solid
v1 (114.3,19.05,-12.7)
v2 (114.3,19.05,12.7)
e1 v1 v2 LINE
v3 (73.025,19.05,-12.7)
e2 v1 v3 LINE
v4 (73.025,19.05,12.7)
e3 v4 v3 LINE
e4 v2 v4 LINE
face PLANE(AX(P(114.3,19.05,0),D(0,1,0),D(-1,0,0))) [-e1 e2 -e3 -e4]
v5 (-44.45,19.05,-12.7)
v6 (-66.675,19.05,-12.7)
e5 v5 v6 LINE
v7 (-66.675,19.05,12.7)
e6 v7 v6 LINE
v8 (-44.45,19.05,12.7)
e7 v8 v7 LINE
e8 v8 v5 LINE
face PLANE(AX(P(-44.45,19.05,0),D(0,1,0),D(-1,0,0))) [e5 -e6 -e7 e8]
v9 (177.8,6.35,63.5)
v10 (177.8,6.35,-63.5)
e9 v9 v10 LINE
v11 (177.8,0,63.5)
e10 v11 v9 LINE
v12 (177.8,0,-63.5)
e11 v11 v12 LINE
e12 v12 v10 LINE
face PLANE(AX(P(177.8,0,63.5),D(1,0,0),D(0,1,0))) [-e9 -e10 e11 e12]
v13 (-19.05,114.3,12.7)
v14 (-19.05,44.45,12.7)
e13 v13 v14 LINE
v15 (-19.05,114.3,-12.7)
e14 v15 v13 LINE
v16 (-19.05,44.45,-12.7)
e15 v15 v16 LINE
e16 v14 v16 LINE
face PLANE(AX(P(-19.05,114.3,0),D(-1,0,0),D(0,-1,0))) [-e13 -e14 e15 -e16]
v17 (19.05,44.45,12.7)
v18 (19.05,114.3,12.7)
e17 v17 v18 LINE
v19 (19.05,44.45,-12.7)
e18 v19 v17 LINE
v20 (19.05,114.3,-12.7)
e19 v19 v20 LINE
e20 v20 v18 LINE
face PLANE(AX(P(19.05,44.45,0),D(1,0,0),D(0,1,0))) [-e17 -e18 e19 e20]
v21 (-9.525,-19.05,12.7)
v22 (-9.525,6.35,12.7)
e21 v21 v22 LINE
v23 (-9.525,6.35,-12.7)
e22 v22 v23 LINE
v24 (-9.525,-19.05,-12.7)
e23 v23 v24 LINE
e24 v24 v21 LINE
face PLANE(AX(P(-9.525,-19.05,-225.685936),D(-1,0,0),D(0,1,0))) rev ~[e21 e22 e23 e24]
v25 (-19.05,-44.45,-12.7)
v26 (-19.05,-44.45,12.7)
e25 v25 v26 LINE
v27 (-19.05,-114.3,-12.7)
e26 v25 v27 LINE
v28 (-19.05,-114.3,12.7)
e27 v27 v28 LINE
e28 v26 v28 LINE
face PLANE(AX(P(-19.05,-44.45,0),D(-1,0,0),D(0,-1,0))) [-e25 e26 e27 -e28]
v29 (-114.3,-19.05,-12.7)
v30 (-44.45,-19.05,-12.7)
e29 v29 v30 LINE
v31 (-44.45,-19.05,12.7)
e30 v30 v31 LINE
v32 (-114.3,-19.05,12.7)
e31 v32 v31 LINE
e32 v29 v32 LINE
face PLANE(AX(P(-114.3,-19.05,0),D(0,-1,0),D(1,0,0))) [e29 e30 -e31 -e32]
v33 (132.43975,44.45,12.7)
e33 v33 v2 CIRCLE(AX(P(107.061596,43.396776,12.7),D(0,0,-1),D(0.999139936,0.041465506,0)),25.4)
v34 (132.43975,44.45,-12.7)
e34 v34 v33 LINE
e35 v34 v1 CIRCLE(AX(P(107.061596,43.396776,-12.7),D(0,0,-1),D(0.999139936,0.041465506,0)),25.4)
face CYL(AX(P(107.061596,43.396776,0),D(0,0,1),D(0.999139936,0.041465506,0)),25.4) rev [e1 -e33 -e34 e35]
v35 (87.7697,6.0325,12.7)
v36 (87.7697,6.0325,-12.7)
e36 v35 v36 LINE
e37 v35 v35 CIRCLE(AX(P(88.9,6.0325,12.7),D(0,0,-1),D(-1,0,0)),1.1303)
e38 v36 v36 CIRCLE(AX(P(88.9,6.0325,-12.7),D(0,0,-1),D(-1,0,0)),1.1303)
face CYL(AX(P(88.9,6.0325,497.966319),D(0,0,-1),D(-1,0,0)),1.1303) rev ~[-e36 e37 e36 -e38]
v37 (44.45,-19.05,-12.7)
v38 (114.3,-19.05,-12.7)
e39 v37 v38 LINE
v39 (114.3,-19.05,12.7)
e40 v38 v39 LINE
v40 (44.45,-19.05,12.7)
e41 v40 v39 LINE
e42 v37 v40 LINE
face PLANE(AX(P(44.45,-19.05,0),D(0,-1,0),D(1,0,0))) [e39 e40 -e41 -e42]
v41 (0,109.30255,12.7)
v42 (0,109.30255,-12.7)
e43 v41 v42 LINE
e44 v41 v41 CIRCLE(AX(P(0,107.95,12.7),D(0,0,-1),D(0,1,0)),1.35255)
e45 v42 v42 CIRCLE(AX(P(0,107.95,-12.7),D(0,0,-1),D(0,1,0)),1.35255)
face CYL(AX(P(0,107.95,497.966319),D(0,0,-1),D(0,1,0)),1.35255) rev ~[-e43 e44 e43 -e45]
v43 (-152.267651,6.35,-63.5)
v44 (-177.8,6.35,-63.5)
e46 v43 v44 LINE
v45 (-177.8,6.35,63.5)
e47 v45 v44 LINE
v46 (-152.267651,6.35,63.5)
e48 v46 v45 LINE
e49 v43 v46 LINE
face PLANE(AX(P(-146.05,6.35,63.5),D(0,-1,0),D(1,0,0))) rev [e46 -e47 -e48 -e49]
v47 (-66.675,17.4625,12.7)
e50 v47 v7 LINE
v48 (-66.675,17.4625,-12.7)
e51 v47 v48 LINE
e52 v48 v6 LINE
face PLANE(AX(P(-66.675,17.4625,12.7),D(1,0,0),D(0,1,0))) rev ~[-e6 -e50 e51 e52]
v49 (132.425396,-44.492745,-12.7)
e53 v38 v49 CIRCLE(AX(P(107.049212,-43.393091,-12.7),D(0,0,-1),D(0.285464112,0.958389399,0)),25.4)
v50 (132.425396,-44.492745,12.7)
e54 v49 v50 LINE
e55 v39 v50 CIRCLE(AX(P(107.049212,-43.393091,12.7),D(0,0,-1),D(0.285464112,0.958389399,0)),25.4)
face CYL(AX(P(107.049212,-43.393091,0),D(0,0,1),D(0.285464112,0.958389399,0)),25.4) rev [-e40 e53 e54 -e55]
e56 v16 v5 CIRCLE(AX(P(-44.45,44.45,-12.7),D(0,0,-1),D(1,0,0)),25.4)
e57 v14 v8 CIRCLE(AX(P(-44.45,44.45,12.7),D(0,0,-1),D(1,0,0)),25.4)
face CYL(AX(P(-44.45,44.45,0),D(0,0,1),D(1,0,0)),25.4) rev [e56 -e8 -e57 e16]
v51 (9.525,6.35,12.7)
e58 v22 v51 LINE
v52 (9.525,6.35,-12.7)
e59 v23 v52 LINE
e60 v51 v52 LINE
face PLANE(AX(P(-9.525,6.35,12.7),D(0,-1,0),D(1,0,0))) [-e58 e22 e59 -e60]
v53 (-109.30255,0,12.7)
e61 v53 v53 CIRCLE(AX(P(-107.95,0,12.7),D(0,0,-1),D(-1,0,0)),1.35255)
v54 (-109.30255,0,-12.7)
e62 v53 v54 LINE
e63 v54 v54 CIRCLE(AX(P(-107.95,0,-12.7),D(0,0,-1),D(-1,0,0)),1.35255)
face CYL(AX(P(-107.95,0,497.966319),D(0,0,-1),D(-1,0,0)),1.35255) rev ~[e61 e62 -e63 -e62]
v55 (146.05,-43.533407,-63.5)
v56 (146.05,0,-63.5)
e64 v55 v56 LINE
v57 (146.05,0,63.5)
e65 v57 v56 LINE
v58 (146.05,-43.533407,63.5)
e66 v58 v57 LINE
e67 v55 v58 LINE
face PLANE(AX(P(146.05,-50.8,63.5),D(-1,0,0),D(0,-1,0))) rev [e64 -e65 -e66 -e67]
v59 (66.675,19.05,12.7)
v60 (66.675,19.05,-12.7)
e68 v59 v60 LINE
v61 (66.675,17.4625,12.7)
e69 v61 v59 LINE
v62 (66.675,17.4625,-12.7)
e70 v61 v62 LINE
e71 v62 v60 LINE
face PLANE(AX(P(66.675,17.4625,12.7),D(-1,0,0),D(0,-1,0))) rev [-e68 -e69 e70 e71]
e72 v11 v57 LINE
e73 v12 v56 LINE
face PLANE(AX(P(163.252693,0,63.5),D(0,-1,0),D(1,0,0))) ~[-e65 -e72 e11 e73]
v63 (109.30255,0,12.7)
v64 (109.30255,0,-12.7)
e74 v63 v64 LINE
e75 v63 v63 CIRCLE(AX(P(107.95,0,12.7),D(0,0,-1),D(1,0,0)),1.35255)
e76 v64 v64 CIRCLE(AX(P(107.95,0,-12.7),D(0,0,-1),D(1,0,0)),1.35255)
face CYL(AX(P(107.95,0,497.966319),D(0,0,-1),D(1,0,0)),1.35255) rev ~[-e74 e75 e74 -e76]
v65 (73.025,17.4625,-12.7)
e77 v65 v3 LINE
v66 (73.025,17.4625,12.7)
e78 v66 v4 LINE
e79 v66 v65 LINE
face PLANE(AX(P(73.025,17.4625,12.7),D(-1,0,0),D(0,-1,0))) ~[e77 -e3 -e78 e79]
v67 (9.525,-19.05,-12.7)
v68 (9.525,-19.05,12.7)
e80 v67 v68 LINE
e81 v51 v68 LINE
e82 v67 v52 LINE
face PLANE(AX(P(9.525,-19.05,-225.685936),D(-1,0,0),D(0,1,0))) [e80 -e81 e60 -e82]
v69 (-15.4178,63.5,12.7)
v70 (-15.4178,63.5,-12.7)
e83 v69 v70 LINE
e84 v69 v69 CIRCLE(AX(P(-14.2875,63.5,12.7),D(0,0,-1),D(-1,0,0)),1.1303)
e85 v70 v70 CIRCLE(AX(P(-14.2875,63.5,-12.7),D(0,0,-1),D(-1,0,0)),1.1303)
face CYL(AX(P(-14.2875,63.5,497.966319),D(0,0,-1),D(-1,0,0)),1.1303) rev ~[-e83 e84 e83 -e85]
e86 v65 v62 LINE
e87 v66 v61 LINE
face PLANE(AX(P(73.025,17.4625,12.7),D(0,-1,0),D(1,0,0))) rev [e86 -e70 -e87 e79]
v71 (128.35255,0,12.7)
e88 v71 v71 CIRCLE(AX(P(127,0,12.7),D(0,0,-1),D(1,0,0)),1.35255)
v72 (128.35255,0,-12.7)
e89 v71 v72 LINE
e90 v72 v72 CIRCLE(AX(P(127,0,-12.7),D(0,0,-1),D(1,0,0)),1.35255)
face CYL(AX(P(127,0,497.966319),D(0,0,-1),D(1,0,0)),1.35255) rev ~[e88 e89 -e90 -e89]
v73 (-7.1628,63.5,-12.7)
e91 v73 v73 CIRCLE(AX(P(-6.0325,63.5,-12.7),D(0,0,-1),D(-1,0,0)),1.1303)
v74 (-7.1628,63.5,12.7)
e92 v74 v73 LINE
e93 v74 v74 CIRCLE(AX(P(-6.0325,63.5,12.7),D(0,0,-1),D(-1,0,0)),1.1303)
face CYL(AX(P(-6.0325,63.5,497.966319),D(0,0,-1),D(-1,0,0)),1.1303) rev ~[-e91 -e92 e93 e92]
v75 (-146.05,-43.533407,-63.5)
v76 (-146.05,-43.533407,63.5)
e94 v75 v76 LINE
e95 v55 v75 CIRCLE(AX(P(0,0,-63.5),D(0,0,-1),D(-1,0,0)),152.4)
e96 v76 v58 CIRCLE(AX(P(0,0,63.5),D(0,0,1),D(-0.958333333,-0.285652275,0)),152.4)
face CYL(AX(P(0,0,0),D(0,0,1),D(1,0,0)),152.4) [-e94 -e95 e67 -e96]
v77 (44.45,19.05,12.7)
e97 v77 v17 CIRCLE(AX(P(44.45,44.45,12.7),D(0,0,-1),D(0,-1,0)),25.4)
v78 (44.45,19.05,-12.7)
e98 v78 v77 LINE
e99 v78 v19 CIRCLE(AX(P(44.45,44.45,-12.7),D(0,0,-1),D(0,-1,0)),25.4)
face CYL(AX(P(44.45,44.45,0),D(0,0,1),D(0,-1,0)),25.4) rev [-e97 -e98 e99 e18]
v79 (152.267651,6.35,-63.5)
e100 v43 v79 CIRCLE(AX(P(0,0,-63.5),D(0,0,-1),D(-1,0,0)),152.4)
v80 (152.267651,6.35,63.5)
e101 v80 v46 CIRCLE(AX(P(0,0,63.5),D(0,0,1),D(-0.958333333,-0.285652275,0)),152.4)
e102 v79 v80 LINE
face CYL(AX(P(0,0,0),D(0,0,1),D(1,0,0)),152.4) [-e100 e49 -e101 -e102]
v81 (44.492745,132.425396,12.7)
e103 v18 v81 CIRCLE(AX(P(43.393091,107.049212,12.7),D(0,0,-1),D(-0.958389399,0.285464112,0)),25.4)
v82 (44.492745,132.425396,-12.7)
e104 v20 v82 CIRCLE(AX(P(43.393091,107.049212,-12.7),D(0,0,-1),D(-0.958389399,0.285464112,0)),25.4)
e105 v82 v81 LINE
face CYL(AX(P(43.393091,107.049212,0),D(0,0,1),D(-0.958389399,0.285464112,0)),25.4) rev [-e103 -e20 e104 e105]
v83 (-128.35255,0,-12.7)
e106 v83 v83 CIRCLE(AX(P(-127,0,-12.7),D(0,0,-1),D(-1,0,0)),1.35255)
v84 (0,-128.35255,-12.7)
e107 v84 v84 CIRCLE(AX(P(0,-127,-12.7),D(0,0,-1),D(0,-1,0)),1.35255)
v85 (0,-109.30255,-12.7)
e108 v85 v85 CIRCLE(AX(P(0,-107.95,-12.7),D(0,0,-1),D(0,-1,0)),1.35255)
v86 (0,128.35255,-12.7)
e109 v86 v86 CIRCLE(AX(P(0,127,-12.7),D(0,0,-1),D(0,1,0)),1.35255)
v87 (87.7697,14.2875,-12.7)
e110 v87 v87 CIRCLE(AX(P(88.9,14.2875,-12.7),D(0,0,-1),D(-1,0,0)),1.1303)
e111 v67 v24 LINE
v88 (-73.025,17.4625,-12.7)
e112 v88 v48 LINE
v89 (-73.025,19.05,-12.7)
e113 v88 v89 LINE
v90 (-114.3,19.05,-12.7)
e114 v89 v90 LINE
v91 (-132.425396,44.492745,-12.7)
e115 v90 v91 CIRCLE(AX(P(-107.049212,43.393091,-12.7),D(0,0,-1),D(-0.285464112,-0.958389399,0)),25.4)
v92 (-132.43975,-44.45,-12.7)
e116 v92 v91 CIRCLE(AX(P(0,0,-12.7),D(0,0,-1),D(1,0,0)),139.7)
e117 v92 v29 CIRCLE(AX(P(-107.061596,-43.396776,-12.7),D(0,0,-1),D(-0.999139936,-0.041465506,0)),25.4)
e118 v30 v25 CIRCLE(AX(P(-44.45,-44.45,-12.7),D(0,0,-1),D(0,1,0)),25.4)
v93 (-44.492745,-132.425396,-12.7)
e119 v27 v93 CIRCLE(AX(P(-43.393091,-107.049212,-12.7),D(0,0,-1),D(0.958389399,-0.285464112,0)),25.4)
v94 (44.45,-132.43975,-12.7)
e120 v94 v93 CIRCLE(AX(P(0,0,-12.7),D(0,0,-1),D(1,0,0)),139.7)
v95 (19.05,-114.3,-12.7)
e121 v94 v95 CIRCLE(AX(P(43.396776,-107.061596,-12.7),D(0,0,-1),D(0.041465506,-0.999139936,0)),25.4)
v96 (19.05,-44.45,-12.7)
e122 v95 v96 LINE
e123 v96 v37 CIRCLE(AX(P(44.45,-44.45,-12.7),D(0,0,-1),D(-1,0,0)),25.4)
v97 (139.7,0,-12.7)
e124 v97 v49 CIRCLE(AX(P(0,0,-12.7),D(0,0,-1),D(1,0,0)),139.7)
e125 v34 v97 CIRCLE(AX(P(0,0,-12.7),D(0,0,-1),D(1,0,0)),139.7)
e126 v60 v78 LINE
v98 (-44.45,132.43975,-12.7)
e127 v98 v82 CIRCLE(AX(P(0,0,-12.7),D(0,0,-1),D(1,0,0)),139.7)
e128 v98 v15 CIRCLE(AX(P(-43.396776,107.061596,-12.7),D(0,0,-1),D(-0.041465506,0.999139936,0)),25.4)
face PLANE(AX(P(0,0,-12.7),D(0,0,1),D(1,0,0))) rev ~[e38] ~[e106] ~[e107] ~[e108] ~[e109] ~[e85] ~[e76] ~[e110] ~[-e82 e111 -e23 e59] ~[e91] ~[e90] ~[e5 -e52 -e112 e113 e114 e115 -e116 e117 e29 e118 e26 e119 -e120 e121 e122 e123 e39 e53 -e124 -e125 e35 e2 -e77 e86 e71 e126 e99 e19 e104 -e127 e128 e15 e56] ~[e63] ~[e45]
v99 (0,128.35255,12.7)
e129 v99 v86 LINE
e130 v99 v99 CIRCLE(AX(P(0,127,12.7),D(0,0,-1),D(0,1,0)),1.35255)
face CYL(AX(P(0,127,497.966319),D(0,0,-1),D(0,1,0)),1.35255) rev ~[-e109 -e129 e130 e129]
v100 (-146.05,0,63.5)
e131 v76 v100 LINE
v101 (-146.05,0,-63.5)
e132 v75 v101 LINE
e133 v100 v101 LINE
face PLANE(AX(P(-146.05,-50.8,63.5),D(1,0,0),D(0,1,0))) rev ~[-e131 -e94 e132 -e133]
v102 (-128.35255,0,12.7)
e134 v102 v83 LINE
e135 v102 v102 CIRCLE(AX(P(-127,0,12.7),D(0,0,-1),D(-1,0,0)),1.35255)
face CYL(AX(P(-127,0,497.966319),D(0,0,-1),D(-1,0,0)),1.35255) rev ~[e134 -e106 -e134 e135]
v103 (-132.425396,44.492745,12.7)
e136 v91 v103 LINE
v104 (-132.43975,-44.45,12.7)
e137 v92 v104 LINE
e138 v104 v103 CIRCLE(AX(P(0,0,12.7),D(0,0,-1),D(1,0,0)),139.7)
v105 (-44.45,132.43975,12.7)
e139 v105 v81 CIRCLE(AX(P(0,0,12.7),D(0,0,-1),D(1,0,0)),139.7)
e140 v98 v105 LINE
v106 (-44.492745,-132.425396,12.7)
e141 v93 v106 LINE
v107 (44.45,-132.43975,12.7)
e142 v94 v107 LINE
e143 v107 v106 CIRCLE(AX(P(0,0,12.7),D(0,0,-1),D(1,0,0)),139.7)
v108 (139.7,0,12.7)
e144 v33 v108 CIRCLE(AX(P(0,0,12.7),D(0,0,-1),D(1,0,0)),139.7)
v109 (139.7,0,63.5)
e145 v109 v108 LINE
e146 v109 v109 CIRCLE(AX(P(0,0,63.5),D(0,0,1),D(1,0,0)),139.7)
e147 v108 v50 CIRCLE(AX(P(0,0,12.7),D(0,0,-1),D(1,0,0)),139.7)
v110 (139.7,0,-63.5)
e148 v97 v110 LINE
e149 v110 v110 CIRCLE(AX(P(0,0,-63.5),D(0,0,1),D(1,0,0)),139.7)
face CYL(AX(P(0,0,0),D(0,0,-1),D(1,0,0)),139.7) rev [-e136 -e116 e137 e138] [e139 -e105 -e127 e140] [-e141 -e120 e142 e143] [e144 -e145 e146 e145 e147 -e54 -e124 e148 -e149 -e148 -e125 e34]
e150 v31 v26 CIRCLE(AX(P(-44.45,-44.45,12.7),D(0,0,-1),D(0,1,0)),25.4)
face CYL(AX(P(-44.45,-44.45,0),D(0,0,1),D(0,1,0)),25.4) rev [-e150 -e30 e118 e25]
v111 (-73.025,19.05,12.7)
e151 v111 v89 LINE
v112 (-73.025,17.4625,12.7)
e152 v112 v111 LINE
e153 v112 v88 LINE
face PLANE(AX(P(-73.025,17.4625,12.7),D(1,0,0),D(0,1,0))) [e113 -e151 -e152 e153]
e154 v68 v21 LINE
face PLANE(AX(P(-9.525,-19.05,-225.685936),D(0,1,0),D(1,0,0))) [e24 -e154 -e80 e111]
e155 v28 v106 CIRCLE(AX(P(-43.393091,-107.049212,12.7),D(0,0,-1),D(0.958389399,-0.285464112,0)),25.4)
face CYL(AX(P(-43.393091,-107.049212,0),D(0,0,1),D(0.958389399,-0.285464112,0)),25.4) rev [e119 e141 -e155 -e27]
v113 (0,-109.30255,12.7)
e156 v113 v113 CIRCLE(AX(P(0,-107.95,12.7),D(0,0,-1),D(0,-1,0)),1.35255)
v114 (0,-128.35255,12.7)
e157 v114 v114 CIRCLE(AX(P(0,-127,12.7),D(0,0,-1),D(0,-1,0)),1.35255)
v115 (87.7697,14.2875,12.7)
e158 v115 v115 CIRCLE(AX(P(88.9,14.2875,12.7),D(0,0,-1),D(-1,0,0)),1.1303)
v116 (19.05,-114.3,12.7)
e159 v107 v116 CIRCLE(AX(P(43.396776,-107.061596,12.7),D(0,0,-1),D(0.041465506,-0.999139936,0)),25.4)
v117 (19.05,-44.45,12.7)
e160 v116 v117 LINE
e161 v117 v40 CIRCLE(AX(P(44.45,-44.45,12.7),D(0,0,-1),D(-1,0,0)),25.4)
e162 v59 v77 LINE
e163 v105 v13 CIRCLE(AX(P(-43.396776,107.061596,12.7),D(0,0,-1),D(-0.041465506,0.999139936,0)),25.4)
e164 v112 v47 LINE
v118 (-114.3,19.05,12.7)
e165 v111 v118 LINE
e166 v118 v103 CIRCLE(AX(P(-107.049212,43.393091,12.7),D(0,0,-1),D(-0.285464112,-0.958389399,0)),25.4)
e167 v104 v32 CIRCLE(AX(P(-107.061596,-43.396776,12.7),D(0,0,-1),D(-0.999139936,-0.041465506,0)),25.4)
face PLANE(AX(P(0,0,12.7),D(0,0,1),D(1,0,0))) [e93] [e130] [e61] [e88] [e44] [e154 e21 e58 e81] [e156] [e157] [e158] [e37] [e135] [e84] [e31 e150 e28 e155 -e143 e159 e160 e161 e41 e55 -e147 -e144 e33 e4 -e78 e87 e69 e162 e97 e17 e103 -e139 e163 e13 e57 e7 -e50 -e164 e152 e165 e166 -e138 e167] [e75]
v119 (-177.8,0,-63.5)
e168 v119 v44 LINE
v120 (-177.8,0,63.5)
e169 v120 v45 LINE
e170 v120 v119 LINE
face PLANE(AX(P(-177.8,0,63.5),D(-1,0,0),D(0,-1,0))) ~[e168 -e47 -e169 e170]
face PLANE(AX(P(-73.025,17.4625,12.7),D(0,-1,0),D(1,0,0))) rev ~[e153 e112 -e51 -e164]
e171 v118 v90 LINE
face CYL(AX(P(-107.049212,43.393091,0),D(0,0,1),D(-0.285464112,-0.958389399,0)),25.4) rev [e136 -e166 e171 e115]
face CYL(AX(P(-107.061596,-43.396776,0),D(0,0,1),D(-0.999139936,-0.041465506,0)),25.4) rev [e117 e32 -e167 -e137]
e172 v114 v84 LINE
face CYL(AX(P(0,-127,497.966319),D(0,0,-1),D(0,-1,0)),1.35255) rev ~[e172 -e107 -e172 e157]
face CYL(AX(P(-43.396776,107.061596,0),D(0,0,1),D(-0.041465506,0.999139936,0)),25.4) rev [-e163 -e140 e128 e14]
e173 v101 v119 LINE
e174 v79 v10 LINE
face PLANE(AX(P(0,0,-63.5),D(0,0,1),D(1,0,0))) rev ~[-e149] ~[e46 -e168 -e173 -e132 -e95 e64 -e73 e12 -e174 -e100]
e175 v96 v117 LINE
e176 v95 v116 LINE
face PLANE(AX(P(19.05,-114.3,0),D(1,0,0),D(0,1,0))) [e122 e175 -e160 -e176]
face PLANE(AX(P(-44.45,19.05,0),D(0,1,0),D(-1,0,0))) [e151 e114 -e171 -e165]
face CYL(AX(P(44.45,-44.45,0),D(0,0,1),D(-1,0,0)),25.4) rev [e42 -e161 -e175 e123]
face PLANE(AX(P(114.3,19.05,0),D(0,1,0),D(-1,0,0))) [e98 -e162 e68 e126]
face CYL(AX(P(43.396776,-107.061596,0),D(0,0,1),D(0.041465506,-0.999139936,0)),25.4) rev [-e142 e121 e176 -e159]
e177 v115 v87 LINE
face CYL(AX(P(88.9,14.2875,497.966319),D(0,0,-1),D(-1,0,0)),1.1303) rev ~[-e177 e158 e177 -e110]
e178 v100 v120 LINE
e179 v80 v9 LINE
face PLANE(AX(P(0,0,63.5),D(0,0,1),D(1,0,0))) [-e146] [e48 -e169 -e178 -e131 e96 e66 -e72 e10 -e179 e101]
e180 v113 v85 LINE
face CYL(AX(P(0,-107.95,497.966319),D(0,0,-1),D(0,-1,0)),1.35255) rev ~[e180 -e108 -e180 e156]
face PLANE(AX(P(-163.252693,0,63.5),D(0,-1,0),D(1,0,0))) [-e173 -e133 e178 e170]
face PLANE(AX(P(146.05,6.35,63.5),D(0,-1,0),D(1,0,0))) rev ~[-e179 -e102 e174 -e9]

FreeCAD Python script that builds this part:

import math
import FreeCAD as App
import Part
import Sketcher
Q = App.Units.Quantity

doc = App.newDocument("Part")
body = doc.addObject("PartDesign::Body", "Body")

# Sketch on XY plane
sketch1 = body.newObject("Sketcher::SketchObject", "Sketch")
sketch1.AttachmentSupport = (doc.getObject("XY_Plane"), [""])
sketch1.MapMode = "FlatFace"
sketch1.addGeometry(Part.Circle(App.Vector(0, 0, 0), App.Vector(0, 0, 1), 152), False)
sketch1.addGeometry(Part.Circle(App.Vector(0, 0, 0), App.Vector(0, 0, 1), 140), False)
sketch1.addConstraint(Sketcher.Constraint("Coincident", 0, 3, -1, 1))
sketch1.addConstraint(Sketcher.Constraint("Coincident", 1, 3, -1, 1))
sketch1.addConstraint(Sketcher.Constraint("Diameter", 0, Q("12 in")))
sketch1.addConstraint(Sketcher.Constraint("Diameter", 1, Q("11 in")))
pad1 = body.newObject("PartDesign::Pad", "Pad")
pad1.Profile = sketch1
pad1.Length = Q("5 in")
pad1.Midplane = True

# Sketch on XY plane
sketch2 = body.newObject("Sketcher::SketchObject", "Sketch001")
sketch2.AttachmentSupport = (doc.getObject("XY_Plane"), [""])
sketch2.MapMode = "FlatFace"
sketch2.addGeometry(Part.ArcOfCircle(Part.Circle(App.Vector(-107, 43.4, 0), App.Vector(0, 0, 1), 25.4), math.radians(178), math.radians(253)), False)
sketch2.addGeometry(Part.LineSegment(App.Vector(-132.4, 44.5, 0), App.Vector(-143.4, 19.1, 0)), False)
sketch2.addGeometry(Part.LineSegment(App.Vector(-143.4, 19.1, 0), App.Vector(-147.2, 19.1, 0)), False)
sketch2.addGeometry(Part.LineSegment(App.Vector(-147.2, 19.1, 0), App.Vector(-147.2, -19.1, 0)), False)
sketch2.addGeometry(Part.LineSegment(App.Vector(-147.2, -19.1, 0), App.Vector(-144, -19.1, 0)), False)
sketch2.addGeometry(Part.LineSegment(App.Vector(-144, -19.1, 0), App.Vector(-132.4, -44.5, 0)), False)
sketch2.addGeometry(Part.ArcOfCircle(Part.Circle(App.Vector(-107.1, -43.4, 0), App.Vector(0, 0, 1), 25.4), math.radians(107), math.radians(182)), False)
sketch2.addGeometry(Part.LineSegment(App.Vector(-114.3, -19.1, 0), App.Vector(-44.5, -19.1, 0)), False)
sketch2.addGeometry(Part.ArcOfCircle(Part.Circle(App.Vector(-44.5, -44.5, 0), App.Vector(0, 0, 1), 25.4), math.radians(0), math.radians(90)), False)
sketch2.addGeometry(Part.LineSegment(App.Vector(-19.1, -44.5, 0), App.Vector(-19.1, -114.3, 0)), False)
sketch2.addGeometry(Part.ArcOfCircle(Part.Circle(App.Vector(-43.4, -107, 0), App.Vector(0, 0, 1), 25.4), math.radians(-92), math.radians(-17)), False)
sketch2.addGeometry(Part.LineSegment(App.Vector(-44.5, -132.4, 0), App.Vector(-19.1, -143.4, 0)), False)
sketch2.addGeometry(Part.LineSegment(App.Vector(-19.1, -143.4, 0), App.Vector(-19.1, -144, 0)), False)
sketch2.addGeometry(Part.LineSegment(App.Vector(-19.1, -144, 0), App.Vector(19.1, -144, 0)), False)
sketch2.addGeometry(Part.LineSegment(App.Vector(19.1, -144, 0), App.Vector(44.5, -132.4, 0)), False)
sketch2.addGeometry(Part.ArcOfCircle(Part.Circle(App.Vector(43.4, -107.1, 0), App.Vector(0, 0, 1), 25.4), math.radians(-163), math.radians(-88)), False)
sketch2.addGeometry(Part.LineSegment(App.Vector(19.1, -114.3, 0), App.Vector(19.1, -44.5, 0)), False)
sketch2.addGeometry(Part.ArcOfCircle(Part.Circle(App.Vector(44.5, -44.5, 0), App.Vector(0, 0, 1), 25.4), math.radians(90), math.radians(180)), False)
sketch2.addGeometry(Part.LineSegment(App.Vector(44.5, -19.1, 0), App.Vector(114.3, -19.1, 0)), False)
sketch2.addGeometry(Part.ArcOfCircle(Part.Circle(App.Vector(107, -43.4, 0), App.Vector(0, 0, 1), 25.4), math.radians(-2), math.radians(73)), False)
sketch2.addGeometry(Part.LineSegment(App.Vector(132.4, -44.5, 0), App.Vector(143.4, -19.1, 0)), False)
sketch2.addGeometry(Part.LineSegment(App.Vector(143.4, -19.1, 0), App.Vector(147.2, -19.1, 0)), False)
sketch2.addGeometry(Part.LineSegment(App.Vector(147.2, -19.1, 0), App.Vector(147.2, 19.1, 0)), False)
sketch2.addGeometry(Part.LineSegment(App.Vector(147.2, 19.1, 0), App.Vector(144, 19.1, 0)), False)
sketch2.addGeometry(Part.LineSegment(App.Vector(144, 19.1, 0), App.Vector(132.4, 44.5, 0)), False)
sketch2.addGeometry(Part.ArcOfCircle(Part.Circle(App.Vector(107.1, 43.4, 0), App.Vector(0, 0, 1), 25.4), math.radians(-73), math.radians(2)), False)
sketch2.addGeometry(Part.LineSegment(App.Vector(114.3, 19.1, 0), App.Vector(44.5, 19.1, 0)), False)
sketch2.addGeometry(Part.ArcOfCircle(Part.Circle(App.Vector(44.5, 44.5, 0), App.Vector(0, 0, 1), 25.4), math.radians(180), math.radians(270)), False)
sketch2.addGeometry(Part.LineSegment(App.Vector(19.1, 44.5, 0), App.Vector(19.1, 114.3, 0)), False)
sketch2.addGeometry(Part.ArcOfCircle(Part.Circle(App.Vector(43.4, 107, 0), App.Vector(0, 0, 1), 25.4), math.radians(88), math.radians(163)), False)
sketch2.addGeometry(Part.LineSegment(App.Vector(44.5, 132.4, 0), App.Vector(19.1, 143.4, 0)), False)
sketch2.addGeometry(Part.LineSegment(App.Vector(19.1, 143.4, 0), App.Vector(19.1, 144, 0)), False)
sketch2.addGeometry(Part.LineSegment(App.Vector(19.1, 144, 0), App.Vector(-19.1, 144, 0)), False)
sketch2.addGeometry(Part.LineSegment(App.Vector(-19.1, 144, 0), App.Vector(-44.5, 132.4, 0)), False)
sketch2.addGeometry(Part.ArcOfCircle(Part.Circle(App.Vector(-43.4, 107.1, 0), App.Vector(0, 0, 1), 25.4), math.radians(17), math.radians(92)), False)
sketch2.addGeometry(Part.LineSegment(App.Vector(-19.1, 114.3, 0), App.Vector(-19.1, 44.5, 0)), False)
sketch2.addGeometry(Part.ArcOfCircle(Part.Circle(App.Vector(-44.5, 44.5, 0), App.Vector(0, 0, 1), 25.4), math.radians(-90), math.radians(0)), False)
sketch2.addGeometry(Part.LineSegment(App.Vector(-44.5, 19.1, 0), App.Vector(-114.3, 19.1, 0)), False)
sketch2.addConstraint(Sketcher.Constraint("Coincident", 0, 1, 1, 1))
sketch2.addConstraint(Sketcher.Constraint("Coincident", 1, 2, 2, 1))
sketch2.addConstraint(Sketcher.Constraint("Coincident", 2, 2, 3, 1))
sketch2.addConstraint(Sketcher.Constraint("Coincident", 3, 2, 4, 1))
sketch2.addConstraint(Sketcher.Constraint("Coincident", 4, 2, 5, 1))
sketch2.addConstraint(Sketcher.Constraint("Coincident", 5, 2, 6, 2))
sketch2.addConstraint(Sketcher.Constraint("Coincident", 6, 1, 7, 1))
sketch2.addConstraint(Sketcher.Constraint("Tangent", 7, 2, 8, 2))
sketch2.addConstraint(Sketcher.Constraint("Tangent", 8, 1, 9, 1))
sketch2.addConstraint(Sketcher.Constraint("Coincident", 9, 2, 10, 2))
sketch2.addConstraint(Sketcher.Constraint("Coincident", 10, 1, 11, 1))
sketch2.addConstraint(Sketcher.Constraint("Coincident", 11, 2, 12, 1))
sketch2.addConstraint(Sketcher.Constraint("Coincident", 12, 2, 13, 1))
sketch2.addConstraint(Sketcher.Constraint("Coincident", 13, 2, 14, 1))
sketch2.addConstraint(Sketcher.Constraint("Coincident", 14, 2, 15, 2))
sketch2.addConstraint(Sketcher.Constraint("Coincident", 15, 1, 16, 1))
sketch2.addConstraint(Sketcher.Constraint("Tangent", 16, 2, 17, 2))
sketch2.addConstraint(Sketcher.Constraint("Tangent", 17, 1, 18, 1))
sketch2.addConstraint(Sketcher.Constraint("Coincident", 18, 2, 19, 2))
sketch2.addConstraint(Sketcher.Constraint("Coincident", 19, 1, 20, 1))
sketch2.addConstraint(Sketcher.Constraint("Coincident", 20, 2, 21, 1))
sketch2.addConstraint(Sketcher.Constraint("Coincident", 21, 2, 22, 1))
sketch2.addConstraint(Sketcher.Constraint("Coincident", 22, 2, 23, 1))
sketch2.addConstraint(Sketcher.Constraint("Coincident", 23, 2, 24, 1))
sketch2.addConstraint(Sketcher.Constraint("Coincident", 24, 2, 25, 2))
sketch2.addConstraint(Sketcher.Constraint("Coincident", 25, 1, 26, 1))
sketch2.addConstraint(Sketcher.Constraint("Tangent", 26, 2, 27, 2))
sketch2.addConstraint(Sketcher.Constraint("Tangent", 27, 1, 28, 1))
sketch2.addConstraint(Sketcher.Constraint("Coincident", 28, 2, 29, 2))
sketch2.addConstraint(Sketcher.Constraint("Coincident", 29, 1, 30, 1))
sketch2.addConstraint(Sketcher.Constraint("Coincident", 30, 2, 31, 1))
sketch2.addConstraint(Sketcher.Constraint("Coincident", 31, 2, 32, 1))
sketch2.addConstraint(Sketcher.Constraint("Coincident", 32, 2, 33, 1))
sketch2.addConstraint(Sketcher.Constraint("Coincident", 33, 2, 34, 2))
sketch2.addConstraint(Sketcher.Constraint("Coincident", 34, 1, 35, 1))
sketch2.addConstraint(Sketcher.Constraint("Tangent", 35, 2, 36, 2))
sketch2.addConstraint(Sketcher.Constraint("Tangent", 36, 1, 37, 1))
sketch2.addConstraint(Sketcher.Constraint("Coincident", 37, 2, 0, 2))
sketch2.addConstraint(Sketcher.Constraint("Horizontal", 2))
sketch2.addConstraint(Sketcher.Constraint("Vertical", 3))
sketch2.addConstraint(Sketcher.Constraint("Horizontal", 4))
sketch2.addConstraint(Sketcher.Constraint("Horizontal", 7))
sketch2.addConstraint(Sketcher.Constraint("Vertical", 9))
sketch2.addConstraint(Sketcher.Constraint("Vertical", 12))
sketch2.addConstraint(Sketcher.Constraint("Horizontal", 13))
sketch2.addConstraint(Sketcher.Constraint("Vertical", 16))
sketch2.addConstraint(Sketcher.Constraint("Horizontal", 18))
sketch2.addConstraint(Sketcher.Constraint("Horizontal", 21))
sketch2.addConstraint(Sketcher.Constraint("Vertical", 22))
sketch2.addConstraint(Sketcher.Constraint("Horizontal", 23))
sketch2.addConstraint(Sketcher.Constraint("Horizontal", 26))
sketch2.addConstraint(Sketcher.Constraint("Vertical", 28))
sketch2.addConstraint(Sketcher.Constraint("Vertical", 31))
sketch2.addConstraint(Sketcher.Constraint("Horizontal", 32))
sketch2.addConstraint(Sketcher.Constraint("Vertical", 35))
sketch2.addConstraint(Sketcher.Constraint("Horizontal", 37))
sketch2.addConstraint(Sketcher.Constraint("Equal", 0, 6))
sketch2.addConstraint(Sketcher.Constraint("Equal", 6, 8))
sketch2.addConstraint(Sketcher.Constraint("Equal", 8, 10))
sketch2.addConstraint(Sketcher.Constraint("Equal", 10, 15))
sketch2.addConstraint(Sketcher.Constraint("Equal", 15, 17))
sketch2.addConstraint(Sketcher.Constraint("Equal", 17, 19))
sketch2.addConstraint(Sketcher.Constraint("Equal", 19, 25))
sketch2.addConstraint(Sketcher.Constraint("Equal", 25, 27))
sketch2.addConstraint(Sketcher.Constraint("Equal", 27, 29))
sketch2.addConstraint(Sketcher.Constraint("Equal", 29, 34))
sketch2.addConstraint(Sketcher.Constraint("Equal", 34, 36))
sketch2.addConstraint(Sketcher.Constraint("Symmetric", 0, 3, 19, 3, -1, 1))
sketch2.addConstraint(Sketcher.Constraint("Symmetric", 6, 3, 25, 3, -1, 1))
sketch2.addConstraint(Sketcher.Constraint("Symmetric", 8, 3, 27, 3, -1, 1))
sketch2.addConstraint(Sketcher.Constraint("Symmetric", 10, 3, 29, 3, -1, 1))
sketch2.addConstraint(Sketcher.Constraint("Symmetric", 15, 3, 34, 3, -1, 1))
sketch2.addConstraint(Sketcher.Constraint("Symmetric", 17, 3, 36, 3, -1, 1))
sketch2.addConstraint(Sketcher.Constraint("Symmetric", 1, 2, 20, 2, -1, 1))
sketch2.addConstraint(Sketcher.Constraint("Symmetric", 3, 2, 22, 2, -1, 1))
sketch2.addConstraint(Sketcher.Constraint("Symmetric", 11, 2, 30, 2, -1, 1))
sketch2.addConstraint(Sketcher.Constraint("Symmetric", 13, 2, 32, 2, -1, 1))
sketch2.addConstraint(Sketcher.Constraint("Symmetric", 8, 3, 17, 3, -2))
sketch2.addConstraint(Sketcher.Constraint("Perpendicular", 1, 11))
sketch2.addConstraint(Sketcher.Constraint("Perpendicular", 5, 14))
sketch2.addConstraint(Sketcher.Constraint("Perpendicular", 11, 20))
sketch2.addConstraint(Sketcher.Constraint("Perpendicular", 14, 24))
sketch2.addConstraint(Sketcher.Constraint("Perpendicular", 20, 30))
sketch2.addConstraint(Sketcher.Constraint("Perpendicular", 24, 33))
sketch2.addConstraint(Sketcher.Constraint("Horizontal", 17, 3, 5, 2))
sketch2.addConstraint(Sketcher.Constraint("Horizontal", 4, 2, 6, 1))
sketch2.addConstraint(Sketcher.Constraint("Horizontal", 9, 2, 15, 1))
sketch2.addConstraint(Sketcher.Constraint("Horizontal", 18, 2, 20, 2))
sketch2.addConstraint(Sketcher.Constraint("Horizontal", 36, 3, 24, 2))
sketch2.addConstraint(Sketcher.Constraint("Vertical", 9, 2, 11, 2))
sketch2.addConstraint(Sketcher.Constraint("Vertical", 27, 3, 14, 2))
sketch2.addConstraint(Sketcher.Constraint("Vertical", 13, 2, 15, 1))
sketch2.addConstraint(Sketcher.Constraint("Vertical", 18, 2, 25, 1))
sketch2.addConstraint(Sketcher.Constraint("Equal", 32, 3))
sketch2.addConstraint(Sketcher.Constraint("Equal", 37, 9))
sketch2.addConstraint(Sketcher.Constraint("Equal", 1, 11))
sketch2.addConstraint(Sketcher.Constraint("Radius", 0, Q("1 in")))
sketch2.addConstraint(Sketcher.Constraint("DistanceX", 13, 1, 13, 2, Q("1.5 in")))
sketch2.addConstraint(Sketcher.Constraint("DistanceX", 7, 1, 7, 2, Q("2.75 in")))
sketch2.addConstraint(Sketcher.Constraint("Distance", 1, Q("27.689102 mm")))
sketch2.addConstraint(Sketcher.Constraint("DistanceX", 0, 1, 6, 3, Q("25.3638 mm")))
sketch2.addConstraint(Sketcher.Constraint("DistanceX", 2, 2, 0, 1, Q("14.766401 mm")))
sketch2.addConstraint(Sketcher.Constraint("DistanceY", 10, 1, 15, 3, Q("25.3638 mm")))
sketch2.addConstraint(Sketcher.Constraint("DistanceY", 12, 2, 10, 3, Q("36.907601 mm")))
sketch2.addConstraint(Sketcher.Constraint("DistanceX", 2, 2, 2, 1, Q("3.841518 mm")))
sketch2.addConstraint(Sketcher.Constraint("DistanceX", 4, 1, 4, 2, Q("3.234985 mm")))
sketch2.addConstraint(Sketcher.Constraint("DistanceX", 0, 3, -1, 1, Q("107.049212 mm")))
pad2 = body.newObject("PartDesign::Pad", "Pad001")
pad2.Profile = sketch2
pad2.Length = Q("1 in")
pad2.Midplane = True

# Sketch on XY plane
sketch3 = body.newObject("Sketcher::SketchObject", "Sketch002")
sketch3.AttachmentSupport = (doc.getObject("XY_Plane"), [""])
sketch3.MapMode = "FlatFace"
sketch3.addGeometry(Part.LineSegment(App.Vector(-10, 0, 0), App.Vector(-10, -19, 0)), False)
sketch3.addGeometry(Part.LineSegment(App.Vector(-10, -19, 0), App.Vector(10, -19, 0)), False)
sketch3.addGeometry(Part.LineSegment(App.Vector(10, -19, 0), App.Vector(10, 0, 0)), False)
sketch3.addGeometry(Part.LineSegment(App.Vector(10, 0, 0), App.Vector(-10, 0, 0)), False)
sketch3.addConstraint(Sketcher.Constraint("Coincident", 0, 2, 1, 1))
sketch3.addConstraint(Sketcher.Constraint("Coincident", 1, 2, 2, 1))
sketch3.addConstraint(Sketcher.Constraint("Coincident", 2, 2, 3, 1))
sketch3.addConstraint(Sketcher.Constraint("Coincident", 3, 2, 0, 1))
sketch3.addConstraint(Sketcher.Constraint("Vertical", 0))
sketch3.addConstraint(Sketcher.Constraint("Horizontal", 1))
sketch3.addConstraint(Sketcher.Constraint("Vertical", 2))
sketch3.addConstraint(Sketcher.Constraint("Horizontal", 3))
sketch3.addConstraint(Sketcher.Constraint("Symmetric", 2, 2, 3, 2, -1, 1))
sketch3.addConstraint(Sketcher.Constraint("Equal", 3, 0))
sketch3.addConstraint(Sketcher.Constraint("DistanceX", 1, 1, 1, 2, Q("0.75 in")))
pocket1 = body.newObject("PartDesign::Pocket", "Pocket")
pocket1.Profile = sketch3
pocket1.Type = "ThroughAll"
pocket1.Midplane = True

# Sketch on XY plane
sketch4 = body.newObject("Sketcher::SketchObject", "Sketch003")
sketch4.AttachmentSupport = (doc.getObject("XY_Plane"), [""])
sketch4.MapMode = "FlatFace"
sketch4.AttachmentOffset = App.Placement(App.Vector(0, 0, 0.5 * 25.4), App.Rotation())
sketch4.addGeometry(Part.LineSegment(App.Vector(-10, 6, 0), App.Vector(-10, 0, 0)), False)
sketch4.addGeometry(Part.LineSegment(App.Vector(-10, 0, 0), App.Vector(10, 0, 0)), False)
sketch4.addGeometry(Part.LineSegment(App.Vector(10, 0, 0), App.Vector(10, 6, 0)), False)
sketch4.addGeometry(Part.LineSegment(App.Vector(10, 6, 0), App.Vector(-10, 6, 0)), False)
sketch4.addConstraint(Sketcher.Constraint("Coincident", 0, 2, 1, 1))
sketch4.addConstraint(Sketcher.Constraint("Coincident", 1, 2, 2, 1))
sketch4.addConstraint(Sketcher.Constraint("Coincident", 2, 2, 3, 1))
sketch4.addConstraint(Sketcher.Constraint("Coincident", 3, 2, 0, 1))
sketch4.addConstraint(Sketcher.Constraint("Vertical", 0))
sketch4.addConstraint(Sketcher.Constraint("Horizontal", 1))
sketch4.addConstraint(Sketcher.Constraint("Vertical", 2))
sketch4.addConstraint(Sketcher.Constraint("Horizontal", 3))
sketch4.addConstraint(Sketcher.Constraint("Symmetric", 0, 2, 1, 2, -1, 1))
sketch4.addConstraint(Sketcher.Constraint("DistanceX", 1, 1, 1, 2, Q("0.75 in")))
sketch4.addConstraint(Sketcher.Constraint("DistanceY", 0, 2, 0, 1, Q("0.25 in")))
pocket2 = body.newObject("PartDesign::Pocket", "Pocket001")
pocket2.Profile = sketch4
pocket2.Type = "ThroughAll"

# Sketch on XY plane
sketch5 = body.newObject("Sketcher::SketchObject", "Sketch004")
sketch5.AttachmentSupport = (doc.getObject("XY_Plane"), [""])
sketch5.MapMode = "FlatFace"
sketch5.AttachmentOffset = App.Placement(App.Vector(0, 0, 2.5 * 25.4), App.Rotation())
sketch5.addGeometry(Part.LineSegment(App.Vector(-163, 0, 0), App.Vector(-163, -51, 0)), False)
sketch5.addGeometry(Part.LineSegment(App.Vector(-163, -51, 0), App.Vector(-146, -51, 0)), False)
sketch5.addGeometry(Part.LineSegment(App.Vector(-146, -51, 0), App.Vector(-146, 0, 0)), False)
sketch5.addGeometry(Part.LineSegment(App.Vector(-146, 0, 0), App.Vector(-163, 0, 0)), False)
sketch5.addConstraint(Sketcher.Constraint("Coincident", 0, 2, 1, 1))
sketch5.addConstraint(Sketcher.Constraint("Coincident", 1, 2, 2, 1))
sketch5.addConstraint(Sketcher.Constraint("Coincident", 2, 2, 3, 1))
sketch5.addConstraint(Sketcher.Constraint("Coincident", 3, 2, 0, 1))
sketch5.addConstraint(Sketcher.Constraint("Vertical", 0))
sketch5.addConstraint(Sketcher.Constraint("Horizontal", 1))
sketch5.addConstraint(Sketcher.Constraint("Vertical", 2))
sketch5.addConstraint(Sketcher.Constraint("Horizontal", 3))
sketch5.addConstraint(Sketcher.Constraint("PointOnObject", 2, 2, -1))
sketch5.addConstraint(Sketcher.Constraint("DistanceY", 0, 2, 0, 1, Q("2 in")))
sketch5.addConstraint(Sketcher.Constraint("DistanceX", 1, 2, -1, 1, Q("5.75 in")))
sketch5.addConstraint(Sketcher.Constraint("DistanceX", 1, 1, 1, 2, Q("17.202693 mm")))
pocket3 = body.newObject("PartDesign::Pocket", "Pocket002")
pocket3.Profile = sketch5
pocket3.Type = "ThroughAll"
doc.recompute()

mirrored = body.newObject("PartDesign::Mirrored", "Mirrored")
mirrored.Originals = [pocket3]
mirrored.MirrorPlane = (doc.getObject("YZ_Plane"), [""])
body.Tip = mirrored

# Sketch on XY plane
sketch6 = body.newObject("Sketcher::SketchObject", "Sketch005")
sketch6.AttachmentSupport = (doc.getObject("XY_Plane"), [""])
sketch6.MapMode = "FlatFace"
sketch6.AttachmentOffset = App.Placement(App.Vector(0, 0, 2.5 * 25.4), App.Rotation())
sketch6.addGeometry(Part.LineSegment(App.Vector(146, 6, 0), App.Vector(146, 0, 0)), False)
sketch6.addGeometry(Part.LineSegment(App.Vector(146, 0, 0), App.Vector(178, 0, 0)), False)
sketch6.addGeometry(Part.LineSegment(App.Vector(178, 0, 0), App.Vector(178, 6, 0)), False)
sketch6.addGeometry(Part.LineSegment(App.Vector(178, 6, 0), App.Vector(146, 6, 0)), False)
sketch6.addConstraint(Sketcher.Constraint("Coincident", 0, 2, 1, 1))
sketch6.addConstraint(Sketcher.Constraint("Coincident", 1, 2, 2, 1))
sketch6.addConstraint(Sketcher.Constraint("Coincident", 2, 2, 3, 1))
sketch6.addConstraint(Sketcher.Constraint("Coincident", 3, 2, 0, 1))
sketch6.addConstraint(Sketcher.Constraint("Vertical", 0))
sketch6.addConstraint(Sketcher.Constraint("Horizontal", 1))
sketch6.addConstraint(Sketcher.Constraint("Vertical", 2))
sketch6.addConstraint(Sketcher.Constraint("Horizontal", 3))
sketch6.addConstraint(Sketcher.Constraint("PointOnObject", 0, 2, -1))
sketch6.addConstraint(Sketcher.Constraint("DistanceX", -1, 1, 1, 2, Q("7 in")))
sketch6.addConstraint(Sketcher.Constraint("DistanceX", 1, 1, 1, 2, Q("1.25 in")))
sketch6.addConstraint(Sketcher.Constraint("DistanceY", 0, 2, 0, 1, Q("0.25 in")))
pad3 = body.newObject("PartDesign::Pad", "Pad002")
pad3.Profile = sketch6
pad3.Length = Q("5 in")
pad3.Reversed = True
doc.recompute()

mirrored2 = body.newObject("PartDesign::Mirrored", "Mirrored001")
mirrored2.Originals = [pad3]
mirrored2.MirrorPlane = (doc.getObject("YZ_Plane"), [""])
body.Tip = mirrored2

# Sketch on XY plane
sketch7 = body.newObject("Sketcher::SketchObject", "Sketch006")
sketch7.AttachmentSupport = (doc.getObject("XY_Plane"), [""])
sketch7.MapMode = "FlatFace"
sketch7.AttachmentOffset = App.Placement(App.Vector(0, 0, 0.5 * 25.4), App.Rotation())
sketch7.addGeometry(Part.LineSegment(App.Vector(-73, 19.1, 0), App.Vector(-73, 17.5, 0)), False)
sketch7.addGeometry(Part.LineSegment(App.Vector(-73, 17.5, 0), App.Vector(-66.7, 17.5, 0)), False)
sketch7.addGeometry(Part.LineSegment(App.Vector(-66.7, 17.5, 0), App.Vector(-66.7, 19.1, 0)), False)
sketch7.addGeometry(Part.LineSegment(App.Vector(-66.7, 19.1, 0), App.Vector(-73, 19.1, 0)), False)
sketch7.addConstraint(Sketcher.Constraint("Coincident", 0, 2, 1, 1))
sketch7.addConstraint(Sketcher.Constraint("Coincident", 1, 2, 2, 1))
sketch7.addConstraint(Sketcher.Constraint("Coincident", 2, 2, 3, 1))
sketch7.addConstraint(Sketcher.Constraint("Coincident", 3, 2, 0, 1))
sketch7.addConstraint(Sketcher.Constraint("Vertical", 0))
sketch7.addConstraint(Sketcher.Constraint("Horizontal", 1))
sketch7.addConstraint(Sketcher.Constraint("Vertical", 2))
sketch7.addConstraint(Sketcher.Constraint("Horizontal", 3))
sketch7.addConstraint(Sketcher.Constraint("DistanceX", 1, 1, 1, 2, Q("0.25 in")))
sketch7.addConstraint(Sketcher.Constraint("DistanceY", 0, 2, 0, 1, Q("0.0625 in")))
sketch7.addConstraint(Sketcher.Constraint("DistanceY", -1, 1, 2, 2, Q("0.75 in")))
sketch7.addConstraint(Sketcher.Constraint("DistanceX", 0, 2, -1, 1, Q("2.875 in")))
pocket4 = body.newObject("PartDesign::Pocket", "Pocket003")
pocket4.Profile = sketch7
pocket4.Type = "ThroughAll"
doc.recompute()

mirrored3 = body.newObject("PartDesign::Mirrored", "Mirrored002")
mirrored3.Originals = [pocket4]
mirrored3.MirrorPlane = (doc.getObject("YZ_Plane"), [""])
body.Tip = mirrored3

# Sketch on XY plane
sketch8 = body.newObject("Sketcher::SketchObject", "Sketch007")
sketch8.AttachmentSupport = (doc.getObject("XY_Plane"), [""])
sketch8.MapMode = "FlatFace"
sketch8.AttachmentOffset = App.Placement(App.Vector(0, 0, 0.5 * 25.4), App.Rotation())
sketch8.addGeometry(Part.Circle(App.Vector(-14.3, 63.5, 0), App.Vector(0, 0, 1), 1.1), False)
sketch8.addGeometry(Part.Circle(App.Vector(-6, 63.5, 0), App.Vector(0, 0, 1), 1.1), False)
sketch8.addGeometry(Part.Circle(App.Vector(88.9, 14.3, 0), App.Vector(0, 0, 1), 1.1), False)
sketch8.addGeometry(Part.Circle(App.Vector(88.9, 6, 0), App.Vector(0, 0, 1), 1.1), False)
sketch8.addConstraint(Sketcher.Constraint("Equal", 0, 1))
sketch8.addConstraint(Sketcher.Constraint("Equal", 1, 2))
sketch8.addConstraint(Sketcher.Constraint("Equal", 2, 3))
sketch8.addConstraint(Sketcher.Constraint("Horizontal", 0, 3, 1, 3))
sketch8.addConstraint(Sketcher.Constraint("Vertical", 2, 3, 3, 3))
sketch8.addConstraint(Sketcher.Constraint("Diameter", 0, Q("0.089 in")))
sketch8.addConstraint(Sketcher.Constraint("DistanceY", -1, 1, 0, 3, Q("2.5 in")))
sketch8.addConstraint(Sketcher.Constraint("DistanceX", -1, 1, 2, 3, Q("3.5 in")))
sketch8.addConstraint(Sketcher.Constraint("DistanceX", 0, 3, -1, 1, Q("0.5625 in")))
sketch8.addConstraint(Sketcher.Constraint("DistanceY", -1, 1, 2, 3, Q("0.5625 in")))
sketch8.addConstraint(Sketcher.Constraint("DistanceX", 0, 3, 1, 3, Q("0.325 in")))
sketch8.addConstraint(Sketcher.Constraint("DistanceY", 3, 3, 2, 3, Q("0.325 in")))
doc.recompute()
hole = body.newObject("PartDesign::Hole", "Hole")
hole.Profile = sketch8
hole.ThreadType = "None"
hole.Diameter = Q("0.089 in")
hole.DepthType = "ThroughAll"

# Sketch on XY plane
sketch9 = body.newObject("Sketcher::SketchObject", "Sketch008")
sketch9.AttachmentSupport = (doc.getObject("XY_Plane"), [""])
sketch9.MapMode = "FlatFace"
sketch9.AttachmentOffset = App.Placement(App.Vector(0, 0, 0.5 * 25.4), App.Rotation())
sketch9.addGeometry(Part.Circle(App.Vector(-108, 0, 0), App.Vector(0, 0, 1), 1.4), False)
sketch9.addGeometry(Part.Circle(App.Vector(-127, 0, 0), App.Vector(0, 0, 1), 1.4), False)
sketch9.addConstraint(Sketcher.Constraint("Equal", 0, 1))
sketch9.addConstraint(Sketcher.Constraint("PointOnObject", 0, 3, -1))
sketch9.addConstraint(Sketcher.Constraint("PointOnObject", 1, 3, -1))
sketch9.addConstraint(Sketcher.Constraint("DistanceX", 1, 3, -1, 1, Q("5 in")))
sketch9.addConstraint(Sketcher.Constraint("Diameter", 0, Q("0.1065 in")))
sketch9.addConstraint(Sketcher.Constraint("DistanceX", 0, 3, -1, 1, Q("4.25 in")))
doc.recompute()
hole2 = body.newObject("PartDesign::Hole", "Hole001")
hole2.Profile = sketch9
hole2.ThreadType = "None"
hole2.Diameter = Q("0.1065 in")
hole2.DepthType = "ThroughAll"
doc.recompute()

polarpattern = body.newObject("PartDesign::PolarPattern", "PolarPattern")
polarpattern.Originals = [hole2]
polarpattern.Axis = (doc.getObject("Z_Axis"), [""])
polarpattern.Angle = 360
polarpattern.Occurrences = 4
body.Tip = polarpattern

doc.recompute()
